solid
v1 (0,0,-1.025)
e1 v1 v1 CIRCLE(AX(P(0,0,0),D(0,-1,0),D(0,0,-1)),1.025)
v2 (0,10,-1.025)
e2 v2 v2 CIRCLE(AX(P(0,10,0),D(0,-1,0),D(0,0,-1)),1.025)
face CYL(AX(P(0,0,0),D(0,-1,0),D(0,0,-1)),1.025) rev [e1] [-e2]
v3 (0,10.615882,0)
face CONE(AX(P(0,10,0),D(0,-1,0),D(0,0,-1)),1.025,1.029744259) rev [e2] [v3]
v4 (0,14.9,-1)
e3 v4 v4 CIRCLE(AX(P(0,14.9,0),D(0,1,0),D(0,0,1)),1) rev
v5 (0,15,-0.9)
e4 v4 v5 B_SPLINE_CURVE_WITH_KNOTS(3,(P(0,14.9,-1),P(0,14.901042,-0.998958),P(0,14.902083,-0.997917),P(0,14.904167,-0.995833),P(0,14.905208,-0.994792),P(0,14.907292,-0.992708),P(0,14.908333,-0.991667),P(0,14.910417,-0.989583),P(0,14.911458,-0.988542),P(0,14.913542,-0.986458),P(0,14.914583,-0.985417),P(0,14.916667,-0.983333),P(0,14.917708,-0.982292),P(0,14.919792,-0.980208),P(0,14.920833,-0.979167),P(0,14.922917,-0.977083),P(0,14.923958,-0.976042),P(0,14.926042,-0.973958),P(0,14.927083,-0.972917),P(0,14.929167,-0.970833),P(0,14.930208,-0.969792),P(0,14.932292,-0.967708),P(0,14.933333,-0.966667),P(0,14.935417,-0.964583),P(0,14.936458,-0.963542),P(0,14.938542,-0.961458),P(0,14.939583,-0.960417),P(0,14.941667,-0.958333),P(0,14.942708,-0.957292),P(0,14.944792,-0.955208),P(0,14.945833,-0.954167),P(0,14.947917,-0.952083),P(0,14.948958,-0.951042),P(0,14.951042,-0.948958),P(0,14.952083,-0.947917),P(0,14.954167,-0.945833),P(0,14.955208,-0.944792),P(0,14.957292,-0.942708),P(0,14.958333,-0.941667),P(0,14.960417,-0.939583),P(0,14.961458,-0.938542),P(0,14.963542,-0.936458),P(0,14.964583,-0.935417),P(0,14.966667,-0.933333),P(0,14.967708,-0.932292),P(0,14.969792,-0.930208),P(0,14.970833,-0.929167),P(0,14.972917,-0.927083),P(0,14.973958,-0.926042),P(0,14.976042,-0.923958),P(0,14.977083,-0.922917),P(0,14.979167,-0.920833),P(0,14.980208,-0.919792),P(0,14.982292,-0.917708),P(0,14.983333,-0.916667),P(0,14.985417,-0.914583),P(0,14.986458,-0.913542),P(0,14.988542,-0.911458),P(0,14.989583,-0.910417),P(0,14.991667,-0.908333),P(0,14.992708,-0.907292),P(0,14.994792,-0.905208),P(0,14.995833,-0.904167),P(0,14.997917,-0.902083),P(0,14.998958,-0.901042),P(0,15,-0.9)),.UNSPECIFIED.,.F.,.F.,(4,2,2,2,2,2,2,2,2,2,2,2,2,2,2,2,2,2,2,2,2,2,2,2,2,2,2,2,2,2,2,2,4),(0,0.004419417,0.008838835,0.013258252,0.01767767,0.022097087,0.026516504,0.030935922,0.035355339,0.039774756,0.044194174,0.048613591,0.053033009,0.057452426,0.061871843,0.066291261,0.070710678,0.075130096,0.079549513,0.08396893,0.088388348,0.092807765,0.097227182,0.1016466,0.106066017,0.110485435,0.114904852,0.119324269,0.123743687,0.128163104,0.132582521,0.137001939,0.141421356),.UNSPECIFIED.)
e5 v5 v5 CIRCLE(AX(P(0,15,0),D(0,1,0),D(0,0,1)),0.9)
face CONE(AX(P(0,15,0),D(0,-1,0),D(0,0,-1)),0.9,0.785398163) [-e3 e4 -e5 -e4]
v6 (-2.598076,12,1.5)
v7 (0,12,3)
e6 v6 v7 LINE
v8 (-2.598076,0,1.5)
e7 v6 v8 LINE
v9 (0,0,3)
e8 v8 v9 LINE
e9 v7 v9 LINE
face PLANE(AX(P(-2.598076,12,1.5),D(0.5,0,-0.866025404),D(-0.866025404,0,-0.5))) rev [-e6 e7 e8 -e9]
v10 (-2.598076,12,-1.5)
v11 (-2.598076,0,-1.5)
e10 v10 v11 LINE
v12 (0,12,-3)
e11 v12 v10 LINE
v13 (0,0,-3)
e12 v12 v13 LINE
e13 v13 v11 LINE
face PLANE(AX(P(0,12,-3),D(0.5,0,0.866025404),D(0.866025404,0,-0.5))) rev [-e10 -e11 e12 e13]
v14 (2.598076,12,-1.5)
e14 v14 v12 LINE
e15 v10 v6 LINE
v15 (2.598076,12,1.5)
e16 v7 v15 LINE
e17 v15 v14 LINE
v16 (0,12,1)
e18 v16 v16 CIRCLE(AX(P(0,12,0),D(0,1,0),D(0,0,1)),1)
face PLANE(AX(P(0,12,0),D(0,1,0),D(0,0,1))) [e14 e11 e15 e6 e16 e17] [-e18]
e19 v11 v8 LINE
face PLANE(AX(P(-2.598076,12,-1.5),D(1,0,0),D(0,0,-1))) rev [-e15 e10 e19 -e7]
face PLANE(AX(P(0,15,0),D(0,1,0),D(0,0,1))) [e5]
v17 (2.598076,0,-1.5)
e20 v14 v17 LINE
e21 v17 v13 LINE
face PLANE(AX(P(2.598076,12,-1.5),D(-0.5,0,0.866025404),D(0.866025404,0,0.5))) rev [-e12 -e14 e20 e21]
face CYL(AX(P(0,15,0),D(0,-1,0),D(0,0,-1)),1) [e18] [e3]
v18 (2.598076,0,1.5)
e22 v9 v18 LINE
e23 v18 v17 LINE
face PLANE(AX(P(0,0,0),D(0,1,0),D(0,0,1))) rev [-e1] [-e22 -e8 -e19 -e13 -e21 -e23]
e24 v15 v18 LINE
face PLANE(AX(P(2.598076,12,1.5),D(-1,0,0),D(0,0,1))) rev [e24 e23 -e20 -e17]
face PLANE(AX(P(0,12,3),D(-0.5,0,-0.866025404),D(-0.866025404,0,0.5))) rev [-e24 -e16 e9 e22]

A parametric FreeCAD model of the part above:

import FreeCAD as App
import Part
import Sketcher
from FreeCAD import Vector
Q = App.Units.Quantity


def edges_at(feature, points):
    """Names of the edges that pass closest to the given points."""
    edges = feature.Shape.Edges
    near = lambda p: min(range(len(edges)), key=lambda i: edges[i].distToShape(Part.Vertex(*p))[0])
    return sorted({f"Edge{near(p) + 1}" for p in points})

doc = App.newDocument("Part")
body = doc.addObject("PartDesign::Body", "Body")

sketch1 = body.newObject("Sketcher::SketchObject", "Sketch")
sketch1.AttachmentSupport = (doc.getObject("XZ_Plane"), [""])
sketch1.MapMode = "FlatFace"
sketch1.addGeometry([
    Part.LineSegment(Vector(0, -3, 0), Vector(-2.598076, -1.5, 0)),
    Part.LineSegment(Vector(-2.598076, -1.5, 0), Vector(-2.598076, 1.5, 0)),
    Part.LineSegment(Vector(-2.598076, 1.5, 0), Vector(0, 3, 0)),
    Part.LineSegment(Vector(0, 3, 0), Vector(2.598076, 1.5, 0)),
    Part.LineSegment(Vector(2.598076, 1.5, 0), Vector(2.598076, -1.5, 0)),
    Part.LineSegment(Vector(2.598076, -1.5, 0), Vector(0, -3, 0)),
], False)
sketch1.addConstraint([
    Sketcher.Constraint("Coincident", 0, 2, 1, 1),
    Sketcher.Constraint("Coincident", 1, 2, 2, 1),
    Sketcher.Constraint("Coincident", 2, 2, 3, 1),
    Sketcher.Constraint("Coincident", 3, 2, 4, 1),
    Sketcher.Constraint("Coincident", 4, 2, 5, 1),
    Sketcher.Constraint("Coincident", 5, 2, 0, 1),
    Sketcher.Constraint("Vertical", 1),
    Sketcher.Constraint("Vertical", 4),
    Sketcher.Constraint("Symmetric", 0, 2, 3, 2, -1, 1),
    Sketcher.Constraint("Symmetric", 2, 2, 5, 2, -1, 1),
    Sketcher.Constraint("PointOnObject", 2, 2, -2),
    Sketcher.Constraint("Parallel", 2, 5),
    Sketcher.Constraint("Horizontal", 1, 2, 3, 2),
    Sketcher.Constraint("DistanceY", 1, 1, 1, 2, Q("3 mm")),
    Sketcher.Constraint("Angle", 0, Q("150 deg")),
    Sketcher.Constraint("Distance", 0, Q("3 mm")),
])
pad1 = body.newObject("PartDesign::Pad", "Pad")
pad1.Profile = sketch1
pad1.Length = 12
pad1.Reversed = True

sketch2 = body.newObject("Sketcher::SketchObject", "Sketch001")
sketch2.AttachmentSupport = (doc.getObject("XZ_Plane"), [""])
sketch2.MapMode = "FlatFace"
sketch2.AttachmentOffset = App.Placement(Vector(0, 0, -12), App.Rotation())
sketch2.addGeometry(Part.Circle(Vector(0, 0, 0), Vector(0, 0, 1), 1), False)
sketch2.addConstraint([
    Sketcher.Constraint("Coincident", 0, 3, -1, 1),
    Sketcher.Constraint("Diameter", 0, Q("2 mm")),
])
pad2 = body.newObject("PartDesign::Pad", "Pad001")
pad2.Profile = sketch2
pad2.Length = 3
pad2.Reversed = True

sketch3 = body.newObject("Sketcher::SketchObject", "Sketch002")
sketch3.AttachmentSupport = (doc.getObject("XZ_Plane"), [""])
sketch3.MapMode = "FlatFace"
sketch3.addGeometry(Part.Circle(Vector(0, 0, 0), Vector(0, 0, 1), 1.025), False)
sketch3.addConstraint([
    Sketcher.Constraint("Coincident", 0, 3, -1, 1),
    Sketcher.Constraint("Diameter", 0, Q("2.05 mm")),
])
doc.recompute()
hole = body.newObject("PartDesign::Hole", "Hole")
hole.Profile = sketch3
hole.ThreadType = "None"
hole.Diameter = 2.05
hole.DepthType = "Dimension"
hole.Depth = 10
hole.DrillPoint = "Angled"
hole.DrillPointAngle = 118
doc.recompute()

chamfer = body.newObject("PartDesign::Chamfer", "Chamfer")
chamfer.Base = (hole, edges_at(hole, [(0, 15, -1)]))
chamfer.Size = 0.1

doc.recompute()
